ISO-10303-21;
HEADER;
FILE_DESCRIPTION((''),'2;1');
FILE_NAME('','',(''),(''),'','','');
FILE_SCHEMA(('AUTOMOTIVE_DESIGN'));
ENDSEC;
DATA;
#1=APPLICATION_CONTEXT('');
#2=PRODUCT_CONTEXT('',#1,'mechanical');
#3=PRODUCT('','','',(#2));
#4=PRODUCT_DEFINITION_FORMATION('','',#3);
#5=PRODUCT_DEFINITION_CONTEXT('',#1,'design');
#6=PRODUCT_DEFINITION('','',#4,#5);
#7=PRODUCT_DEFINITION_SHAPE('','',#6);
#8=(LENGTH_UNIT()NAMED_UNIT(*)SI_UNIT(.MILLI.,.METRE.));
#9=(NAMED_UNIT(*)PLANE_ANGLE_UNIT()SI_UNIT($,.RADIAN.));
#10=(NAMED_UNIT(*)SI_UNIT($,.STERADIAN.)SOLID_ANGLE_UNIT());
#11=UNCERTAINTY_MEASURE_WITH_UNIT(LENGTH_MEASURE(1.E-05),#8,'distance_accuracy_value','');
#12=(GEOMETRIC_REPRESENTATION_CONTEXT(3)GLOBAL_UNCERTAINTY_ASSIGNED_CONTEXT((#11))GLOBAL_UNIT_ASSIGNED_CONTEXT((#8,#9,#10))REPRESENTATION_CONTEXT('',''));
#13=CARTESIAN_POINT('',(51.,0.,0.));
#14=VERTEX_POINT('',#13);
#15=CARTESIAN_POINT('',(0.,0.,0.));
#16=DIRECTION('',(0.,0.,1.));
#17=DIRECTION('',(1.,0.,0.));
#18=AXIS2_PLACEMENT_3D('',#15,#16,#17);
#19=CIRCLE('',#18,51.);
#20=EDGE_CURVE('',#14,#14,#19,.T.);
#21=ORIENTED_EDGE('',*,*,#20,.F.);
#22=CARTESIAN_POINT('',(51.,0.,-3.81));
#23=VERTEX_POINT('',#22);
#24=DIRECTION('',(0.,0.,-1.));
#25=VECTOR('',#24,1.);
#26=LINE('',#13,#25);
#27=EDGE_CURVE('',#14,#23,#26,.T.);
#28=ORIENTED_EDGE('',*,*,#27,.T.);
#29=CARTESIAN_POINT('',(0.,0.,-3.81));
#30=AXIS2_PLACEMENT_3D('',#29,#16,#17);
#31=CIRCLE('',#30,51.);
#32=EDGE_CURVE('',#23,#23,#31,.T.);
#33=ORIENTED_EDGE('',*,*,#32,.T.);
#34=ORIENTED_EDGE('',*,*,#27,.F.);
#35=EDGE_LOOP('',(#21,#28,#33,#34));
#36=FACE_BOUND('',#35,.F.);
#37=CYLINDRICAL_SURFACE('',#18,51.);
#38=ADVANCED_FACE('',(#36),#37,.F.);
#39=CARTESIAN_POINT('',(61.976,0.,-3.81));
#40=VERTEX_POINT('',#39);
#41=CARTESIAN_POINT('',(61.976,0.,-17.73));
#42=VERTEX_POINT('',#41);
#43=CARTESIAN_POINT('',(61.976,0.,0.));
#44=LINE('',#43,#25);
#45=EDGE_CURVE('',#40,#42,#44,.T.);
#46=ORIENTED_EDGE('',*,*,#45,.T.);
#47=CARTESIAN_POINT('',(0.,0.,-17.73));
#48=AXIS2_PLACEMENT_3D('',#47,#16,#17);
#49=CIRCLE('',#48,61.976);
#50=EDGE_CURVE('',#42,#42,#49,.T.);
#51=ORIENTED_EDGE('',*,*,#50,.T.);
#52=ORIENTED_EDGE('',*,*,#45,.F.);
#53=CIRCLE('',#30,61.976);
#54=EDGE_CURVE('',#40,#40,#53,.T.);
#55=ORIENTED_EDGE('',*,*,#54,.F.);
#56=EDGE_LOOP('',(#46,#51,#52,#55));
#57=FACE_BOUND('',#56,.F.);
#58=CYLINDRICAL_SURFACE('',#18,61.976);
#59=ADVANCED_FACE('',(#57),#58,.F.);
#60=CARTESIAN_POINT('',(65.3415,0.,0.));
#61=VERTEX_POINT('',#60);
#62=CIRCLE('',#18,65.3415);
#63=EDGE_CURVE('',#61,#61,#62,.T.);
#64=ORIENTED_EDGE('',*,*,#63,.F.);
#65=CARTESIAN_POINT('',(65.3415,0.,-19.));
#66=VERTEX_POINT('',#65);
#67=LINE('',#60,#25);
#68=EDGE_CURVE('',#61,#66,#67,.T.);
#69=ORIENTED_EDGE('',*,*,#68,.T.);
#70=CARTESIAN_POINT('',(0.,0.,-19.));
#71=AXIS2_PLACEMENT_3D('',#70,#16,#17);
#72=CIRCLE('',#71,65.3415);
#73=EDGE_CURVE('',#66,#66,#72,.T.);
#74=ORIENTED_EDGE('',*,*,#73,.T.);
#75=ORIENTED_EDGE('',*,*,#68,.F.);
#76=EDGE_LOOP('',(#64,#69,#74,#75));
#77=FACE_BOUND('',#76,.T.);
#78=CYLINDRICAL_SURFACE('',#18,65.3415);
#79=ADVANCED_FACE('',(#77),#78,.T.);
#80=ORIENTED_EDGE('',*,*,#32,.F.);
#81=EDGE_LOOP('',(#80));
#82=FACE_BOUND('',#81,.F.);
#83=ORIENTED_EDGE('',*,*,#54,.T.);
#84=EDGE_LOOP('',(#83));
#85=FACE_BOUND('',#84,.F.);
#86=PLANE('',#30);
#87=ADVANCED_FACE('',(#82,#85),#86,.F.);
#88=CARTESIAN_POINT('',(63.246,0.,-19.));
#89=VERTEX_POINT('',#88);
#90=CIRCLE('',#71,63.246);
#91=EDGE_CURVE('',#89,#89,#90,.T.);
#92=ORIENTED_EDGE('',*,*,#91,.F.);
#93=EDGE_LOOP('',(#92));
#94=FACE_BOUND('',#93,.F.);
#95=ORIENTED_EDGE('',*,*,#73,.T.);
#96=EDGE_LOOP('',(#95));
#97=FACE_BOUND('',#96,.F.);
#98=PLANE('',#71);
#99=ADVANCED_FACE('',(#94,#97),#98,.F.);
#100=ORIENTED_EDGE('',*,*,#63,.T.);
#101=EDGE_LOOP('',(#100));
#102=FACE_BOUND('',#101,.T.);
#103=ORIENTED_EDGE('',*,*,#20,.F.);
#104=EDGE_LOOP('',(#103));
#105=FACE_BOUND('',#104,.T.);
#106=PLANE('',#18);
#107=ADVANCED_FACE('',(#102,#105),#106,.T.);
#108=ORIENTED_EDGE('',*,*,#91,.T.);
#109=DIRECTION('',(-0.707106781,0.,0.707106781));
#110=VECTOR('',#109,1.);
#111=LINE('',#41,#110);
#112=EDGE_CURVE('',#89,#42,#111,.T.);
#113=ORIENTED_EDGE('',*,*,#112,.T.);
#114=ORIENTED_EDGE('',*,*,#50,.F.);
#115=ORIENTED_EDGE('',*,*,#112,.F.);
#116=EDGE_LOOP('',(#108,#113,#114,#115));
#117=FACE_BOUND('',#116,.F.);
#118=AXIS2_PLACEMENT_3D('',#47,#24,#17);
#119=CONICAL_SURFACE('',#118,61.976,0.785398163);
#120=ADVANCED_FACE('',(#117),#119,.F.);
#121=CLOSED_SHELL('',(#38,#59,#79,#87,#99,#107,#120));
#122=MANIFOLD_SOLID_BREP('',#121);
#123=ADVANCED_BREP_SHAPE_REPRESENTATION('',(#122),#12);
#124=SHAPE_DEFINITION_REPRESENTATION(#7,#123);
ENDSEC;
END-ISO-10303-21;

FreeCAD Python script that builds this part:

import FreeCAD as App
import Part
import Sketcher
from FreeCAD import Vector
Q = App.Units.Quantity


def edges_at(feature, points):
    """Names of the edges that pass closest to the given points."""
    edges = feature.Shape.Edges
    near = lambda p: min(range(len(edges)), key=lambda i: edges[i].distToShape(Part.Vertex(*p))[0])
    return sorted({f"Edge{near(p) + 1}" for p in points})

doc = App.newDocument("Part")
body = doc.addObject("PartDesign::Body", "Body")

sketch1 = body.newObject("Sketcher::SketchObject", "Sketch")
sketch1.AttachmentSupport = (doc.getObject("XY_Plane"), [""])
sketch1.MapMode = "FlatFace"
sketch1.addGeometry(Part.Circle(Vector(0, 0, 0), Vector(0, 0, 1), 64.77), False)
sketch1.addGeometry(Part.Circle(Vector(0, 0, 0), Vector(0, 0, 1), 51), False)
sketch1.addConstraint(Sketcher.Constraint("Coincident", 0, 3, -1, 1))
sketch1.addConstraint(Sketcher.Constraint("Coincident", 1, 3, -1, 1))
sketch1.addConstraint(Sketcher.Constraint("Diameter", 0, Q("5.1 in")))
sketch1.addConstraint(Sketcher.Constraint("Diameter", 1, 102.0))
pad1 = body.newObject("PartDesign::Pad", "Pad")
pad1.Profile = sketch1
pad1.Length = Q("0.15 in")
pad1.Reversed = True

sketch2 = body.newObject("Sketcher::SketchObject", "Sketch001")
sketch2.AttachmentSupport = (doc.getObject("XY_Plane"), [""])
sketch2.MapMode = "FlatFace"
sketch2.addGeometry(Part.Circle(Vector(0, 0, 0), Vector(0, 0, 1), 65.3415), False)
sketch2.addGeometry(Part.Circle(Vector(0, 0, 0), Vector(0, 0, 1), 61.976), False)
sketch2.addConstraint(Sketcher.Constraint("Coincident", 0, 3, -1, 1))
sketch2.addConstraint(Sketcher.Constraint("Coincident", 1, 3, -1, 1))
sketch2.addConstraint(Sketcher.Constraint("Diameter", 1, Q("4.88 in")))
sketch2.addConstraint(Sketcher.Constraint("Diameter", 0, Q("5.145 in")))
pad2 = body.newObject("PartDesign::Pad", "Pad001")
pad2.Profile = sketch2
pad2.Length = 19
pad2.Reversed = True
doc.recompute()

chamfer = body.newObject("PartDesign::Chamfer", "Chamfer")
chamfer.Base = (pad2, edges_at(pad2, [(-61.976, 0, -19)]))
chamfer.Size = Q("0.05 in")

doc.recompute()
